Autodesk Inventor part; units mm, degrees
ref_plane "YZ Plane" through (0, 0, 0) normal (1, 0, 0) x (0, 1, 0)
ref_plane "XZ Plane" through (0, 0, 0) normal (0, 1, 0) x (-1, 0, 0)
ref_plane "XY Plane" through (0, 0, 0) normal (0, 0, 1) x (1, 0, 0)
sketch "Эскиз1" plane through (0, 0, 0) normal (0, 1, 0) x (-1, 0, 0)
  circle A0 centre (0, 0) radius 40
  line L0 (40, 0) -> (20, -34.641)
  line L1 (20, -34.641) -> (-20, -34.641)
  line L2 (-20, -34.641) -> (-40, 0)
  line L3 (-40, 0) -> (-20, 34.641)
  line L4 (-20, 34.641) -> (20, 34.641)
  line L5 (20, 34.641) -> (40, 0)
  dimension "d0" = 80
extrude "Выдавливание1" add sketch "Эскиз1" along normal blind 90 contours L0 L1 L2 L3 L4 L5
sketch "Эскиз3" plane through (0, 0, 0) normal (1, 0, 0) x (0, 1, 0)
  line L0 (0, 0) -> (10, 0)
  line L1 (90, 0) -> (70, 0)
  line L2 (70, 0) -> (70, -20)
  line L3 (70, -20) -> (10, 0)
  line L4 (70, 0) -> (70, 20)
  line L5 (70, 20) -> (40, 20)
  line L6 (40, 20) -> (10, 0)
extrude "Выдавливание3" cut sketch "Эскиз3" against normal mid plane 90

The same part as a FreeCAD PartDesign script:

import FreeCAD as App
import Part
import Sketcher
from FreeCAD import Vector
Q = App.Units.Quantity


def add_polygon(sketch, points):
    """Adds a closed chain of lines whose ends are joined by coincident constraints."""
    first, n = sketch.GeometryCount, len(points)
    for a, b in zip(points, points[1:] + points[:1]):
        sketch.addGeometry(Part.LineSegment(App.Vector(*a, 0), App.Vector(*b, 0)), False)
    for i in range(n):
        sketch.addConstraint(Sketcher.Constraint("Coincident", first + i, 2, first + (i + 1) % n, 1))

doc = App.newDocument("Part")
body = doc.addObject("PartDesign::Body", "Body")

sketch1 = body.newObject("Sketcher::SketchObject", "Sketch")
sketch1.AttachmentSupport = (doc.getObject("XZ_Plane"), [""])
sketch1.MapMode = "FlatFace"
add_polygon(sketch1, [(-20, -35), (-40, 0), (-20, 35), (20, 35), (40, 0), (20, -35)])
sketch1.addConstraint([
    Sketcher.Constraint("Horizontal", 2),
    Sketcher.Constraint("Horizontal", 5),
    Sketcher.Constraint("Symmetric", 0, 2, 3, 2, -1, 1),
    Sketcher.Constraint("Symmetric", 1, 2, 4, 2, -1, 1),
    Sketcher.Constraint("PointOnObject", 0, 2, -1),
    Sketcher.Constraint("Parallel", 0, 3),
    Sketcher.Constraint("Vertical", 2, 2, 4, 2),
    Sketcher.Constraint("DistanceX", 0, 2, 3, 2, Q("80 mm")),
    Sketcher.Constraint("DistanceX", 2, 1, 2, 2, Q("40 mm")),
    Sketcher.Constraint("Angle", 0, Q("120 deg")),
])
pad1 = body.newObject("PartDesign::Pad", "Pad")
pad1.Profile = sketch1
pad1.Length = 90
pad1.Reversed = True

sketch2 = body.newObject("Sketcher::SketchObject", "Sketch001")
sketch2.AttachmentSupport = (doc.getObject("YZ_Plane"), [""])
sketch2.MapMode = "FlatFace"
add_polygon(sketch2, [(70, -20), (70, 20), (40, 20), (10, 0)])
sketch2.addConstraint([
    Sketcher.Constraint("Vertical", 0),
    Sketcher.Constraint("Horizontal", 1),
    Sketcher.Constraint("PointOnObject", 2, 2, -1),
    Sketcher.Constraint("DistanceX", 1, 2, 1, 1, Q("30 mm")),
    Sketcher.Constraint("DistanceY", 0, 1, 0, 2, Q("40 mm")),
    Sketcher.Constraint("DistanceX", -1, 1, 0, 2, Q("70 mm")),
    Sketcher.Constraint("DistanceY", -1, 1, 0, 2, Q("20 mm")),
    Sketcher.Constraint("DistanceX", -1, 1, 2, 2, Q("10 mm")),
])
pocket1 = body.newObject("PartDesign::Pocket", "Pocket")
pocket1.Profile = sketch2
pocket1.Length = 90
pocket1.Midplane = True

doc.recompute()
